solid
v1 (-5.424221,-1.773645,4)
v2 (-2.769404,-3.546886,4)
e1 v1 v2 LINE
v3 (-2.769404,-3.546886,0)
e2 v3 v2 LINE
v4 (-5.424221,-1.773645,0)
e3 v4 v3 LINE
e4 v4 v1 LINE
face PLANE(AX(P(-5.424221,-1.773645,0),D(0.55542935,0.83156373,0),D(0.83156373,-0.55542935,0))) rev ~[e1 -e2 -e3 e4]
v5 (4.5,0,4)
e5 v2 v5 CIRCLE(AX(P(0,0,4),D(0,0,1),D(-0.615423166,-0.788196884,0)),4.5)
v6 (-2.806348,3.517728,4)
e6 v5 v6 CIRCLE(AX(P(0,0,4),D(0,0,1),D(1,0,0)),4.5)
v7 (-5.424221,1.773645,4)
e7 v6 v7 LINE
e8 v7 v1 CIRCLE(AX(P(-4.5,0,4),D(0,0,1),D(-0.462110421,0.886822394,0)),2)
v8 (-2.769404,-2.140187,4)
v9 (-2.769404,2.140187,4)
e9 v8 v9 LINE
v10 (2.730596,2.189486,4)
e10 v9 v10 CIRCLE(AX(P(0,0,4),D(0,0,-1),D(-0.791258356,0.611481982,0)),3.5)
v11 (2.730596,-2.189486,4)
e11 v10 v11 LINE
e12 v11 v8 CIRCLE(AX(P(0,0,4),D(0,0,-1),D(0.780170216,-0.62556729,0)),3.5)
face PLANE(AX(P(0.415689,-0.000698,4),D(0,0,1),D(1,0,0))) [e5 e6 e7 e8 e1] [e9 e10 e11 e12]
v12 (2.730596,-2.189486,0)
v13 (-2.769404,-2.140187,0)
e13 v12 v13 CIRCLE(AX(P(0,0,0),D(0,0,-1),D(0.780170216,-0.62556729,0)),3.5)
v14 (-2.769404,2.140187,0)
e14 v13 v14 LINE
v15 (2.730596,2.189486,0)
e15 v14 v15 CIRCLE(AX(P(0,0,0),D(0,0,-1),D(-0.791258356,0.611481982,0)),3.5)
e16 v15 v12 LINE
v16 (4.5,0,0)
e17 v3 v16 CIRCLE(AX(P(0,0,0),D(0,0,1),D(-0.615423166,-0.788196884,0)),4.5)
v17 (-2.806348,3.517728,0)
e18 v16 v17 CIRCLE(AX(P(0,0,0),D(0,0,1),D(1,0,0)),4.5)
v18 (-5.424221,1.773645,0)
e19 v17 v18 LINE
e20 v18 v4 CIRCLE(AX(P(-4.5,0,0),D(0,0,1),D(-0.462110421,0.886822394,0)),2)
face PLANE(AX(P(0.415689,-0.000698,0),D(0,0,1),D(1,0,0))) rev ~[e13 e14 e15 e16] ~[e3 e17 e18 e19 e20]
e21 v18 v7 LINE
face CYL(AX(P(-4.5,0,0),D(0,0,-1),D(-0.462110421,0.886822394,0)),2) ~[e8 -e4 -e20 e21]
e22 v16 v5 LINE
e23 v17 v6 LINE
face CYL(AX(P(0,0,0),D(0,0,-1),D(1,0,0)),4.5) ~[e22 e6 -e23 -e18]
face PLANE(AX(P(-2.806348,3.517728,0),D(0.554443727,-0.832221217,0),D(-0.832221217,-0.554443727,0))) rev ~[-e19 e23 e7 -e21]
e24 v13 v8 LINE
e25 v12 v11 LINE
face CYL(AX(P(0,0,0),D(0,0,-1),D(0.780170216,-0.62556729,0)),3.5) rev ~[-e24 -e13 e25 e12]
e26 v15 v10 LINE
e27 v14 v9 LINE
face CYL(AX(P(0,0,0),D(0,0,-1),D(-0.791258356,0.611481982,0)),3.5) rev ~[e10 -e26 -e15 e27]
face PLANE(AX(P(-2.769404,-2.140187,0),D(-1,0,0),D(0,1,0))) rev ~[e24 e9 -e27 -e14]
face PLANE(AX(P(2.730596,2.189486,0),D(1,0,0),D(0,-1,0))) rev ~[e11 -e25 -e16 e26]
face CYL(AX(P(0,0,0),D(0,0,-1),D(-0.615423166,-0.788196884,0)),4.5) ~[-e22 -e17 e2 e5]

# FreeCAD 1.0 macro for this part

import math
import FreeCAD as App
import Part
import Sketcher
from FreeCAD import Vector

doc = App.newDocument("Part")
body = doc.addObject("PartDesign::Body", "Body")

# Sketch on XY plane
sketch1 = body.newObject("Sketcher::SketchObject", "Sketch")
sketch1.AttachmentSupport = (doc.getObject("XY_Plane"), [""])
sketch1.MapMode = "FlatFace"
sketch1.addGeometry([
    Part.ArcOfCircle(Part.Circle(Vector(0, 0, 0), Vector(0, 0, 1), 4.5), math.radians(-128), math.radians(0)),  # 0
    Part.ArcOfCircle(Part.Circle(Vector(0, 0, 0), Vector(0, 0, 1), 4.5), math.radians(0), math.radians(129)),  # 1
    Part.LineSegment(Vector(-2.8, 3.5, 0), Vector(-5.4, 1.8, 0)),  # 2
    Part.ArcOfCircle(Part.Circle(Vector(-4.5, 0, 0), Vector(0, 0, 1), 2), math.radians(118), math.radians(242)),  # 3
    Part.LineSegment(Vector(-5.4, -1.8, 0), Vector(-2.8, -3.5, 0)),  # 4
    Part.ArcOfCircle(Part.Circle(Vector(0, 0, 0), Vector(0, 0, 1), 3.5), math.radians(-142), math.radians(-39)),  # 5
    Part.LineSegment(Vector(-2.8, -2.1, 0), Vector(-2.8, 2.1, 0)),  # 6
    Part.ArcOfCircle(Part.Circle(Vector(0, 0, 0), Vector(0, 0, 1), 3.5), math.radians(39), math.radians(142)),  # 7
    Part.LineSegment(Vector(2.7, 2.2, 0), Vector(2.7, -2.2, 0)),  # 8
], False)
sketch1.addConstraint([
    Sketcher.Constraint("Tangent", 0, 2, 1, 1),
    Sketcher.Constraint("Coincident", 1, 2, 2, 1),
    Sketcher.Constraint("Coincident", 2, 2, 3, 1),
    Sketcher.Constraint("Coincident", 3, 2, 4, 1),
    Sketcher.Constraint("Coincident", 4, 2, 0, 1),
    Sketcher.Constraint("Coincident", 5, 1, 6, 1),
    Sketcher.Constraint("Coincident", 6, 2, 7, 2),
    Sketcher.Constraint("Coincident", 7, 1, 8, 1),
    Sketcher.Constraint("Coincident", 8, 2, 5, 2),
    Sketcher.Constraint("Vertical", 6),
    Sketcher.Constraint("Vertical", 8),
    Sketcher.Constraint("Coincident", 0, 3, -1, 1),
    Sketcher.Constraint("Coincident", 5, 3, -1, 1),
    Sketcher.Constraint("Coincident", 7, 3, -1, 1),
    Sketcher.Constraint("Equal", 0, 1),
    Sketcher.Constraint("Equal", 5, 7),
    Sketcher.Constraint("Symmetric", 2, 2, 3, 2, -1),
    Sketcher.Constraint("PointOnObject", 0, 2, -1),
    Sketcher.Constraint("Vertical", 4, 2, 5, 1),
    Sketcher.Constraint("Radius", 3, 2.0),
    Sketcher.Constraint("Radius", 0, 4.5),
    Sketcher.Constraint("Radius", 5, 3.5),
    Sketcher.Constraint("DistanceX", 3, 3, 0, 2, 9.0),
    Sketcher.Constraint("DistanceY", 8, 2, 8, 1, 4.378971),
    Sketcher.Constraint("DistanceY", 4, 2, 5, 1, 1.406699),
    Sketcher.Constraint("Distance", 4, 3.192559),
    Sketcher.Constraint("DistanceY", -1, 1, 1, 2, 3.517728),
])
pad1 = body.newObject("PartDesign::Pad", "Pad")
pad1.Profile = sketch1
pad1.Length = 4

doc.recompute()
